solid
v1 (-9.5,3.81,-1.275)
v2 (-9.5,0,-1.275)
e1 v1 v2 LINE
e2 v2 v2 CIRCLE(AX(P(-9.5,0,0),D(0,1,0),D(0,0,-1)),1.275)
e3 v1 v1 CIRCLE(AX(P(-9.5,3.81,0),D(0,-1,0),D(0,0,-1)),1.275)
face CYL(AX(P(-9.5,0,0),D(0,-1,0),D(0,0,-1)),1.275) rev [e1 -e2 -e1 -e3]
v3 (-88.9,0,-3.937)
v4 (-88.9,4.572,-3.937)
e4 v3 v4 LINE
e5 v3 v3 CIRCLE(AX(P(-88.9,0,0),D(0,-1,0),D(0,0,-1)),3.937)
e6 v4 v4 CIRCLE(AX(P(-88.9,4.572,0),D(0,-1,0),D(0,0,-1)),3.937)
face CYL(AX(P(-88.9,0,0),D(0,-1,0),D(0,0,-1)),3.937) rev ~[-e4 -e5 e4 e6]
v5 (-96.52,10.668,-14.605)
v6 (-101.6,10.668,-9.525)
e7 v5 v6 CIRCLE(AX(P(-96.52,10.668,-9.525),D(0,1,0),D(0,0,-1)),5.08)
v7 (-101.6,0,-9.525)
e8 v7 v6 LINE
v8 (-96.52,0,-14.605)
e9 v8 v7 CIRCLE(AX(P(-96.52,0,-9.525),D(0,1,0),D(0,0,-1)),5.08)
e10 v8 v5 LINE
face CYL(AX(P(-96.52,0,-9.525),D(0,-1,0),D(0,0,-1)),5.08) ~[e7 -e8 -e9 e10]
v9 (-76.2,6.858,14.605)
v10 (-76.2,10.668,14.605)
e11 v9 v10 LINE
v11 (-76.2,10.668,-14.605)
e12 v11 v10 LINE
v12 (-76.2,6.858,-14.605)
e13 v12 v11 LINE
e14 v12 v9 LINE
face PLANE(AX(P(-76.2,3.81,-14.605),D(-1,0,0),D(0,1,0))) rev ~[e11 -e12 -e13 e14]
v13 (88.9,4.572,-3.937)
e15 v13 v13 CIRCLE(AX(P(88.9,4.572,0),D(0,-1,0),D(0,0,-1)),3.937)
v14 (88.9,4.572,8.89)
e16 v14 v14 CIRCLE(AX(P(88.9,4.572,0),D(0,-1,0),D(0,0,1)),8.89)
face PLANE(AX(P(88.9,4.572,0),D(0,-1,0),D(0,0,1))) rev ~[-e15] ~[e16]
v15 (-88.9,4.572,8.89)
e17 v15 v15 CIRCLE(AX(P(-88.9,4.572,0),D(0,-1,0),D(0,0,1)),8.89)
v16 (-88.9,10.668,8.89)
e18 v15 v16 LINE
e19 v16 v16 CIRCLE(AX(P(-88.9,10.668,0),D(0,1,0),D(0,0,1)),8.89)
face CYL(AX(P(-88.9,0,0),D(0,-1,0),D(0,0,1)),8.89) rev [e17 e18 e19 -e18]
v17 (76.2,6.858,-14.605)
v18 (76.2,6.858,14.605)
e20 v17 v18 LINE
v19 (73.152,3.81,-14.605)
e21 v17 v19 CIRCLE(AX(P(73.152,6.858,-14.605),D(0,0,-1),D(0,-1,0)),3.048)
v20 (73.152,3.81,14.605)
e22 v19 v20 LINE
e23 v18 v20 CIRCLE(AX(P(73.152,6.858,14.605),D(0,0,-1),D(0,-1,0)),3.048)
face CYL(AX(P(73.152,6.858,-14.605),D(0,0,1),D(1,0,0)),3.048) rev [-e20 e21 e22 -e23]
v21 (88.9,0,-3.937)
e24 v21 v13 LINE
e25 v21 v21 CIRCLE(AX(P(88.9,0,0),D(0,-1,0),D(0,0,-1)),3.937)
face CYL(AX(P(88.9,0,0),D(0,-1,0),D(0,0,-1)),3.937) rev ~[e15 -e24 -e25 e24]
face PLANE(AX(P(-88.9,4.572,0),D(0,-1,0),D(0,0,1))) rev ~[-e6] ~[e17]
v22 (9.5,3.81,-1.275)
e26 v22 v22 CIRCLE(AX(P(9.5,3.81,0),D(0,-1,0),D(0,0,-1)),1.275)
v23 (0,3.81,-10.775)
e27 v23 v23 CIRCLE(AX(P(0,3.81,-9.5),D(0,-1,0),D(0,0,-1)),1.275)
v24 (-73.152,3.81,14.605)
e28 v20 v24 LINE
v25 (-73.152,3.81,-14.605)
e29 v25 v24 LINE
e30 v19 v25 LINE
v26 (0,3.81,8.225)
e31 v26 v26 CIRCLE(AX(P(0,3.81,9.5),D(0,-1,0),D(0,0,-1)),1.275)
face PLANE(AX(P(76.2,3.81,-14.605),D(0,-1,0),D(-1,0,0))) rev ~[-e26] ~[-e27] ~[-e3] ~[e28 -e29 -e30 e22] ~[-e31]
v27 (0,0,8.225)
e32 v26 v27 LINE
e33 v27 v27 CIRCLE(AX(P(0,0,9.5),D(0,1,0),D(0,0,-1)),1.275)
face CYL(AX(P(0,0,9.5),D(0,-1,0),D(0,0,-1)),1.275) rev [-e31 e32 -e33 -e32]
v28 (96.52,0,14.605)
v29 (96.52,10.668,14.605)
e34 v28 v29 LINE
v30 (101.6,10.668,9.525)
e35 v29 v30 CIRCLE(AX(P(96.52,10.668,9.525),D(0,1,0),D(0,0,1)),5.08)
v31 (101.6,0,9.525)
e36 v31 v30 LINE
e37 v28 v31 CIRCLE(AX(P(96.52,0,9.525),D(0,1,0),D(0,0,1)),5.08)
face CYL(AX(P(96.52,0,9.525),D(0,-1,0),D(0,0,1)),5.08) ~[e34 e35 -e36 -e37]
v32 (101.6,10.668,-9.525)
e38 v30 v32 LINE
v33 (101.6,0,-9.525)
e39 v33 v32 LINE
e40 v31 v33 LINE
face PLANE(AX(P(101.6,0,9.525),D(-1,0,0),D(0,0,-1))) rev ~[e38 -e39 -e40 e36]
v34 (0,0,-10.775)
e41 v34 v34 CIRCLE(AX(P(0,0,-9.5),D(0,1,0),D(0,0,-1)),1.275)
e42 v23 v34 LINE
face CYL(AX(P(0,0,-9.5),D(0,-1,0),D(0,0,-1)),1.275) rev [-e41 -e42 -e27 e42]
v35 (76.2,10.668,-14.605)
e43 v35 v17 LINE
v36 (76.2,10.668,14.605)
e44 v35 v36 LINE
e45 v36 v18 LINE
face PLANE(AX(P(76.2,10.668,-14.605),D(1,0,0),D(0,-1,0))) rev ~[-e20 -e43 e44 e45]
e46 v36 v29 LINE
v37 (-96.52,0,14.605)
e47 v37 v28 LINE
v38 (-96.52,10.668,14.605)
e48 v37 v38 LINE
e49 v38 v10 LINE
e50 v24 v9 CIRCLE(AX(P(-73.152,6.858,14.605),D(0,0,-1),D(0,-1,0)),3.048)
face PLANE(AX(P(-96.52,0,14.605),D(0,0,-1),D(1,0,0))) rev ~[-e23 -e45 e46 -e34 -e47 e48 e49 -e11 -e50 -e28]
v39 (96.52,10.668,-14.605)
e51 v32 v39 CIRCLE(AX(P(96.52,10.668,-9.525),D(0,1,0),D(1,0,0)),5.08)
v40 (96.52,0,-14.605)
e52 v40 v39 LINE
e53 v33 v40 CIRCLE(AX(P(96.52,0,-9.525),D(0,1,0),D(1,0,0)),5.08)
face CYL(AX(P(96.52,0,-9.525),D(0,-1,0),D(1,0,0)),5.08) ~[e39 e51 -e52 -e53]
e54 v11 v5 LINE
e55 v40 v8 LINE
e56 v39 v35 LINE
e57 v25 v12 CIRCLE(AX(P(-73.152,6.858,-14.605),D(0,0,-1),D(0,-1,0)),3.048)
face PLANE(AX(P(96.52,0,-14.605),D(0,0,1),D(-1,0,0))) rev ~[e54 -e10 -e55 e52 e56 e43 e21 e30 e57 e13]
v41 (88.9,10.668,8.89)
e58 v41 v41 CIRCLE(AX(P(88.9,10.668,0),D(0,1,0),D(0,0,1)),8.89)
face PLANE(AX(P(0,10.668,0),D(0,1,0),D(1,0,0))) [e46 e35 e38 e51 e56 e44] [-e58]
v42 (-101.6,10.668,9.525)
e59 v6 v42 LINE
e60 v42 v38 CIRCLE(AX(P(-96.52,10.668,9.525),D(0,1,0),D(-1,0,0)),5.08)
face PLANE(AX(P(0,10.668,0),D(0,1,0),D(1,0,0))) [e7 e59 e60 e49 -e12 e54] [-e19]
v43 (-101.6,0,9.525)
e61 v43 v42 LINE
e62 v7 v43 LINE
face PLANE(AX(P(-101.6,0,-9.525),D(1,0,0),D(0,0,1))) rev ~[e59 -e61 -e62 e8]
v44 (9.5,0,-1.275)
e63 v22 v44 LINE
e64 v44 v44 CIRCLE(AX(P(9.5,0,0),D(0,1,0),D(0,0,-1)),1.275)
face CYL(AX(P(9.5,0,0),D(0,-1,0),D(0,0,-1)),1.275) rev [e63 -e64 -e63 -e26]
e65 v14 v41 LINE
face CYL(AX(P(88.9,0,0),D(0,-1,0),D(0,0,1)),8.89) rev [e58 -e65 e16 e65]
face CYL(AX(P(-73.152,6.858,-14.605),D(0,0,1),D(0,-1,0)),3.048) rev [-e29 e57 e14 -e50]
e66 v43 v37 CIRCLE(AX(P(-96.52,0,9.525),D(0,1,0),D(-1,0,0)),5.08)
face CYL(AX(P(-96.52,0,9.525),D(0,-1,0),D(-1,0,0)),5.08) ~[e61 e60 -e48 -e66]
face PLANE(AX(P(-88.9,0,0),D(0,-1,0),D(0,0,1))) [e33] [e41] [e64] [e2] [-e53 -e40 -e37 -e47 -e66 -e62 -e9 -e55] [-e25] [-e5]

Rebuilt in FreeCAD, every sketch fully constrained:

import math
import FreeCAD as App
import Part
import Sketcher

V = App.Vector
Q = App.Units.Quantity


def edges_at(feature, points):
    """Names of the edges that pass closest to the given points."""
    edges = feature.Shape.Edges
    near = lambda p: min(range(len(edges)), key=lambda i: edges[i].distToShape(Part.Vertex(*p))[0])
    return sorted({f"Edge{near(p) + 1}" for p in points})


def add_polygon(sketch, points):
    """Adds a closed chain of lines whose ends are joined by coincident constraints."""
    first, n = sketch.GeometryCount, len(points)
    for a, b in zip(points, points[1:] + points[:1]):
        sketch.addGeometry(Part.LineSegment(App.Vector(*a, 0), App.Vector(*b, 0)), False)
    for i in range(n):
        sketch.addConstraint(Sketcher.Constraint("Coincident", first + i, 2, first + (i + 1) % n, 1))

doc = App.newDocument("Part")
body = doc.addObject("PartDesign::Body", "Body")

# Sketch on XZ plane
sketch1 = body.newObject("Sketcher::SketchObject", "Sketch")
sketch1.AttachmentSupport = (doc.getObject("XZ_Plane"), [""])
sketch1.MapMode = "FlatFace"
sketch1.addGeometry(Part.Circle(V(0, 0, 0), V(0, 0, 1), 13.97), False)
sketch1.addGeometry(Part.Circle(V(0, 9.5, 0), V(0, 0, 1), 1.275), False)
sketch1.addGeometry(Part.Circle(V(9.5, 0, 0), V(0, 0, 1), 1.275), False)
sketch1.addGeometry(Part.Circle(V(-9.5, 0, 0), V(0, 0, 1), 1.275), False)
sketch1.addGeometry(Part.Circle(V(0, -9.5, 0), V(0, 0, 1), 1.275), False)
sketch1.addConstraint(Sketcher.Constraint("Coincident", 0, 3, -1, 1))
sketch1.addConstraint(Sketcher.Constraint("Equal", 1, 2))
sketch1.addConstraint(Sketcher.Constraint("Equal", 2, 3))
sketch1.addConstraint(Sketcher.Constraint("Equal", 3, 4))
sketch1.addConstraint(Sketcher.Constraint("Symmetric", 2, 3, 3, 3, -1, 1))
sketch1.addConstraint(Sketcher.Constraint("Symmetric", 1, 3, 4, 3, -1, 1))
sketch1.addConstraint(Sketcher.Constraint("PointOnObject", 1, 3, -2))
sketch1.addConstraint(Sketcher.Constraint("PointOnObject", 2, 3, -1))
sketch1.addConstraint(Sketcher.Constraint("Diameter", 0, Q("1.1 in")))
sketch1.addConstraint(Sketcher.Constraint("Diameter", 1, Q("2.55 mm")))
sketch1.addConstraint(Sketcher.Constraint("DistanceY", -1, 1, 1, 3, Q("9.5 mm")))
sketch1.addConstraint(Sketcher.Constraint("DistanceX", -1, 1, 2, 3, Q("9.5 mm")))
pad1 = body.newObject("PartDesign::Pad", "Pad")
pad1.Profile = sketch1
pad1.Length = Q("0.12 in")
pad1.Reversed = True

# Sketch on XZ plane
sketch2 = body.newObject("Sketcher::SketchObject", "Sketch001")
sketch2.AttachmentSupport = (doc.getObject("XZ_Plane"), [""])
sketch2.MapMode = "FlatFace"
sketch2.AttachmentOffset = App.Placement(V(0, 0, -0.12 * 25.4), App.Rotation())
sketch2.addGeometry(Part.LineSegment(V(-96.52, 14.605, 0), V(96.52, 14.605, 0)), False)
sketch2.addGeometry(Part.ArcOfCircle(Part.Circle(V(96.52, 9.525, 0), V(0, 0, 1), 5.08), math.radians(0), math.radians(90)), False)
sketch2.addGeometry(Part.LineSegment(V(101.6, 9.525, 0), V(101.6, -9.525, 0)), False)
sketch2.addGeometry(Part.ArcOfCircle(Part.Circle(V(96.52, -9.525, 0), V(0, 0, 1), 5.08), math.radians(-90), math.radians(0)), False)
sketch2.addGeometry(Part.LineSegment(V(96.52, -14.605, 0), V(-96.52, -14.605, 0)), False)
sketch2.addGeometry(Part.ArcOfCircle(Part.Circle(V(-96.52, -9.525, 0), V(0, 0, 1), 5.08), math.radians(-180), math.radians(-90)), False)
sketch2.addGeometry(Part.LineSegment(V(-101.6, -9.525, 0), V(-101.6, 9.525, 0)), False)
sketch2.addGeometry(Part.ArcOfCircle(Part.Circle(V(-96.52, 9.525, 0), V(0, 0, 1), 5.08), math.radians(90), math.radians(180)), False)
sketch2.addGeometry(Part.Circle(V(0, 9.5, 0), V(0, 0, 1), 1.275), False)
sketch2.addGeometry(Part.Circle(V(-88.9, 0, 0), V(0, 0, 1), 8.89), False)
sketch2.addGeometry(Part.Circle(V(-9.5, 0, 0), V(0, 0, 1), 1.275), False)
sketch2.addGeometry(Part.Circle(V(9.5, 0, 0), V(0, 0, 1), 1.275), False)
sketch2.addGeometry(Part.Circle(V(88.9, 0, 0), V(0, 0, 1), 8.89), False)
sketch2.addGeometry(Part.Circle(V(0, -9.5, 0), V(0, 0, 1), 1.275), False)
sketch2.addConstraint(Sketcher.Constraint("Tangent", 0, 2, 1, 2))
sketch2.addConstraint(Sketcher.Constraint("Tangent", 1, 1, 2, 1))
sketch2.addConstraint(Sketcher.Constraint("Tangent", 2, 2, 3, 2))
sketch2.addConstraint(Sketcher.Constraint("Tangent", 3, 1, 4, 1))
sketch2.addConstraint(Sketcher.Constraint("Tangent", 4, 2, 5, 2))
sketch2.addConstraint(Sketcher.Constraint("Tangent", 5, 1, 6, 1))
sketch2.addConstraint(Sketcher.Constraint("Tangent", 6, 2, 7, 2))
sketch2.addConstraint(Sketcher.Constraint("Tangent", 7, 1, 0, 1))
sketch2.addConstraint(Sketcher.Constraint("Horizontal", 0))
sketch2.addConstraint(Sketcher.Constraint("Vertical", 2))
sketch2.addConstraint(Sketcher.Constraint("Horizontal", 4))
sketch2.addConstraint(Sketcher.Constraint("Vertical", 6))
sketch2.addConstraint(Sketcher.Constraint("Equal", 1, 3))
sketch2.addConstraint(Sketcher.Constraint("Equal", 3, 5))
sketch2.addConstraint(Sketcher.Constraint("Equal", 5, 7))
sketch2.addConstraint(Sketcher.Constraint("Equal", 8, 10))
sketch2.addConstraint(Sketcher.Constraint("Equal", 10, 11))
sketch2.addConstraint(Sketcher.Constraint("Equal", 9, 12))
sketch2.addConstraint(Sketcher.Constraint("Equal", 11, 13))
sketch2.addConstraint(Sketcher.Constraint("Symmetric", 1, 3, 5, 3, -1, 1))
sketch2.addConstraint(Sketcher.Constraint("Symmetric", 10, 3, 11, 3, -1, 1))
sketch2.addConstraint(Sketcher.Constraint("Symmetric", 9, 3, 12, 3, -1, 1))
sketch2.addConstraint(Sketcher.Constraint("Symmetric", 8, 3, 13, 3, -1, 1))
sketch2.addConstraint(Sketcher.Constraint("PointOnObject", 8, 3, -2))
sketch2.addConstraint(Sketcher.Constraint("PointOnObject", 9, 3, -1))
sketch2.addConstraint(Sketcher.Constraint("PointOnObject", 10, 3, -1))
sketch2.addConstraint(Sketcher.Constraint("Diameter", 9, Q("0.7 in")))
sketch2.addConstraint(Sketcher.Constraint("Radius", 1, Q("0.2 in")))
sketch2.addConstraint(Sketcher.Constraint("DistanceX", 0, 1, 0, 2, Q("7.6 in")))
sketch2.addConstraint(Sketcher.Constraint("DistanceY", 2, 2, 2, 1, Q("0.75 in")))
sketch2.addConstraint(Sketcher.Constraint("DistanceX", 9, 3, -1, 1, Q("3.5 in")))
sketch2.addConstraint(Sketcher.Constraint("Diameter", 8, Q("2.55 mm")))
sketch2.addConstraint(Sketcher.Constraint("DistanceY", -1, 1, 8, 3, Q("9.5 mm")))
sketch2.addConstraint(Sketcher.Constraint("DistanceX", 10, 3, -1, 1, Q("9.5 mm")))
pad2 = body.newObject("PartDesign::Pad", "Pad001")
pad2.Profile = sketch2
pad2.Type = "TwoLengths"
pad2.Length = Q("0.3 in")
pad2.Length2 = Q("0.12 in")
pad2.Reversed = True

# Sketch on XY plane
sketch3 = body.newObject("Sketcher::SketchObject", "Sketch002")
sketch3.AttachmentSupport = (doc.getObject("XY_Plane"), [""])
sketch3.MapMode = "FlatFace"
sketch3.AttachmentOffset = App.Placement(V(0, 0, -0.575 * 25.4), App.Rotation())
add_polygon(sketch3, [(76.2, 3.81), (-76.2, 3.81), (-76.2, 10.668), (76.2, 10.668)])  # lines 0-3
sketch3.addConstraint(Sketcher.Constraint("Horizontal", 0))
sketch3.addConstraint(Sketcher.Constraint("Vertical", 1))
sketch3.addConstraint(Sketcher.Constraint("Horizontal", 2))
sketch3.addConstraint(Sketcher.Constraint("Vertical", 3))
sketch3.addConstraint(Sketcher.Constraint("DistanceX", 0, 2, 0, 1, Q("6 in")))
sketch3.addConstraint(Sketcher.Constraint("DistanceX", 0, 2, -1, 1, Q("3 in")))
sketch3.addConstraint(Sketcher.Constraint("DistanceY", 1, 1, 1, 2, Q("0.27 in")))
sketch3.addConstraint(Sketcher.Constraint("DistanceY", -1, 1, 0, 2, Q("0.15 in")))
pocket1 = body.newObject("PartDesign::Pocket", "Pocket")
pocket1.Profile = sketch3
pocket1.Type = "ThroughAll"
pocket1.Reversed = True

# Sketch on XZ plane
sketch4 = body.newObject("Sketcher::SketchObject", "Sketch003")
sketch4.AttachmentSupport = (doc.getObject("XZ_Plane"), [""])
sketch4.MapMode = "FlatFace"
sketch4.addGeometry(Part.Circle(V(-88.9, 0, 0), V(0, 0, 1), 8.89), False)
sketch4.addGeometry(Part.Circle(V(-88.9, 0, 0), V(0, 0, 1), 3.937), False)
sketch4.addGeometry(Part.Circle(V(88.9, 0, 0), V(0, 0, 1), 8.89), False)
sketch4.addGeometry(Part.Circle(V(88.9, 0, 0), V(0, 0, 1), 3.937), False)
sketch4.addConstraint(Sketcher.Constraint("Coincident", 1, 3, 0, 3))
sketch4.addConstraint(Sketcher.Constraint("Coincident", 3, 3, 2, 3))
sketch4.addConstraint(Sketcher.Constraint("Equal", 0, 2))
sketch4.addConstraint(Sketcher.Constraint("Equal", 1, 3))
sketch4.addConstraint(Sketcher.Constraint("Symmetric", 0, 3, 2, 3, -1, 1))
sketch4.addConstraint(Sketcher.Constraint("PointOnObject", 0, 3, -1))
sketch4.addConstraint(Sketcher.Constraint("Diameter", 0, Q("0.7 in")))
sketch4.addConstraint(Sketcher.Constraint("Diameter", 1, Q("0.31 in")))
sketch4.addConstraint(Sketcher.Constraint("DistanceX", 0, 3, 2, 3, Q("7 in")))
pad3 = body.newObject("PartDesign::Pad", "Pad002")
pad3.Profile = sketch4
pad3.Length = Q("0.18 in")
pad3.Reversed = True
doc.recompute()

fillet = body.newObject("PartDesign::Fillet", "Fillet")
fillet.Base = (pad3, edges_at(pad3, [(-76.2, 3.81, 0), (76.2, 3.81, 0)]))
fillet.Radius = Q("0.12 in")

doc.recompute()
